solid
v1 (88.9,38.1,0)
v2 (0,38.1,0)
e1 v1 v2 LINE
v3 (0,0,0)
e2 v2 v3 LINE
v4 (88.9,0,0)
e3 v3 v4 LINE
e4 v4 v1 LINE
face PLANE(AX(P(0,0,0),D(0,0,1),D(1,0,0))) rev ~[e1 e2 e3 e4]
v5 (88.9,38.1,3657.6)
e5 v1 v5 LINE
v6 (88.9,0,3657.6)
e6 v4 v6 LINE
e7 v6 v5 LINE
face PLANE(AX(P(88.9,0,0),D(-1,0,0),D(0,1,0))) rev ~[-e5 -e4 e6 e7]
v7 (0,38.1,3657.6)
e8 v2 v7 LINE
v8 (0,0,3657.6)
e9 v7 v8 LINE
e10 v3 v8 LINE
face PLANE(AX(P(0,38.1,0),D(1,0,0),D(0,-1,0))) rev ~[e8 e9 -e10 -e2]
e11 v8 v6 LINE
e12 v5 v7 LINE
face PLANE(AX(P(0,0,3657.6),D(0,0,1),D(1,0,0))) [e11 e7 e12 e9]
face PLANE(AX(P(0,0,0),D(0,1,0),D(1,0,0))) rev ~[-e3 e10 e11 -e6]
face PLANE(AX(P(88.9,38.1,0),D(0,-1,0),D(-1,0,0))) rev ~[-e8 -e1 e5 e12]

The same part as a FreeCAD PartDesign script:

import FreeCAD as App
import Part
import Sketcher

V = App.Vector
Q = App.Units.Quantity


def add_polygon(sketch, points):
    """Adds a closed chain of lines whose ends are joined by coincident constraints."""
    first, n = sketch.GeometryCount, len(points)
    for a, b in zip(points, points[1:] + points[:1]):
        sketch.addGeometry(Part.LineSegment(App.Vector(*a, 0), App.Vector(*b, 0)), False)
    for i in range(n):
        sketch.addConstraint(Sketcher.Constraint("Coincident", first + i, 2, first + (i + 1) % n, 1))

doc = App.newDocument("Part")
body = doc.addObject("PartDesign::Body", "Body")

sketch1 = doc.addObject("Sketcher::SketchObject", "Sketch")
body.addObject(sketch1)
sketch1.AttachmentSupport = (doc.XY_Plane, [""])
sketch1.MapMode = "FlatFace"
add_polygon(sketch1, [(0, 38.1), (0, 0), (88.9, 0), (88.9, 38.1)])
sketch1.addConstraint([
    Sketcher.Constraint("Vertical", 0),
    Sketcher.Constraint("Horizontal", 1),
    Sketcher.Constraint("Vertical", 2),
    Sketcher.Constraint("Horizontal", 3),
    Sketcher.Constraint("Coincident", 0, 2, -1, 1),
    Sketcher.Constraint("DistanceX", 1, 1, 1, 2, Q("3.5 in")),
    Sketcher.Constraint("DistanceY", 0, 2, 0, 1, Q("1.5 in")),
])
pad1 = doc.addObject("PartDesign::Pad", "Pad")
body.addObject(pad1)
pad1.Profile = sketch1
pad1.Length = Q("144 in")

doc.recompute()
